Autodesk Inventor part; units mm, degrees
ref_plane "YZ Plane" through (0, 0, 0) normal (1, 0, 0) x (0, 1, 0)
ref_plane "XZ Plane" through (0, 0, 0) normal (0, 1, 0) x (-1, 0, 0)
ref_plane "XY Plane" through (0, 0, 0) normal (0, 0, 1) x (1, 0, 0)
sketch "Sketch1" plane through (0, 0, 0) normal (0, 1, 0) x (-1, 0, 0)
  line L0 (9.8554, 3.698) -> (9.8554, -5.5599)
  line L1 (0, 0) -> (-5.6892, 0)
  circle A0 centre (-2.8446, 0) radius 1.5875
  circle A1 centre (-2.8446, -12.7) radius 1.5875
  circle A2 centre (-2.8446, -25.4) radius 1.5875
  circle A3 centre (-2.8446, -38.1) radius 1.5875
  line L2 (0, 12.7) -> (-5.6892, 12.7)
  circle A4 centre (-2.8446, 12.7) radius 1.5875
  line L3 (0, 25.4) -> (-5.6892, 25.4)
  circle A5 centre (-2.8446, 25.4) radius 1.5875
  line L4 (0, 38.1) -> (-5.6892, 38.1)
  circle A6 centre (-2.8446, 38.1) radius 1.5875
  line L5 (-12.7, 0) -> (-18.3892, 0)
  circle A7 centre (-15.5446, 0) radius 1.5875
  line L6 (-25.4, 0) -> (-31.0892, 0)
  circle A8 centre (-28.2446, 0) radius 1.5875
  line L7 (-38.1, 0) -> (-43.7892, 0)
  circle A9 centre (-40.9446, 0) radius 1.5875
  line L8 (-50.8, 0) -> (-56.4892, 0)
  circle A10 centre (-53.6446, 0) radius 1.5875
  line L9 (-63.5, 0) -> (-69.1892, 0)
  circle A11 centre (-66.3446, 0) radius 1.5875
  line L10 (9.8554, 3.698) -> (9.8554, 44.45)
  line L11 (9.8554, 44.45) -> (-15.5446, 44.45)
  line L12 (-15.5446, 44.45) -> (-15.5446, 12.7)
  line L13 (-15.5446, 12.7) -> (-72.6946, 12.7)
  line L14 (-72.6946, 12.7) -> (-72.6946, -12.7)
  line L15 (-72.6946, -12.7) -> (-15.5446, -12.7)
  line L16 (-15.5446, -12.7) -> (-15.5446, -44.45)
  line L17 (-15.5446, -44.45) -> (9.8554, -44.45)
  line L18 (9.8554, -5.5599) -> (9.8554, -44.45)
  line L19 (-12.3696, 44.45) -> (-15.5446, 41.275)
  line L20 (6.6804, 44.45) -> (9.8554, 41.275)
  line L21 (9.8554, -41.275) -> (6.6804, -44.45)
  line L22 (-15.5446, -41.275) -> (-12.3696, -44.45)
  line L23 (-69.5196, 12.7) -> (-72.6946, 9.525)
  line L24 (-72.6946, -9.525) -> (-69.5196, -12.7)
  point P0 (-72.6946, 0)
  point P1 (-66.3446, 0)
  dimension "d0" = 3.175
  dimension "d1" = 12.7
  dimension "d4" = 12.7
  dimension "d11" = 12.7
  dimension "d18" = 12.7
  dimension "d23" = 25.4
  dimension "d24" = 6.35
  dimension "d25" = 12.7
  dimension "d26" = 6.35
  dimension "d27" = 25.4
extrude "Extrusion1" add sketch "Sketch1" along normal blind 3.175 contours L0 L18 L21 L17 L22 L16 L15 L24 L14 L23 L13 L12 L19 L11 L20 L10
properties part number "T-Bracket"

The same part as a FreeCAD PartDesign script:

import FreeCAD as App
import Part
import Sketcher
Q = App.Units.Quantity


def add_polygon(sketch, points):
    """Adds a closed chain of lines whose ends are joined by coincident constraints."""
    first, n = sketch.GeometryCount, len(points)
    for a, b in zip(points, points[1:] + points[:1]):
        sketch.addGeometry(Part.LineSegment(App.Vector(*a, 0), App.Vector(*b, 0)), False)
    for i in range(n):
        sketch.addConstraint(Sketcher.Constraint("Coincident", first + i, 2, first + (i + 1) % n, 1))

doc = App.newDocument("Part")
body = doc.addObject("PartDesign::Body", "Body")

sketch1 = doc.addObject("Sketcher::SketchObject", "Sketch")
body.addObject(sketch1)
sketch1.AttachmentSupport = (doc.XZ_Plane, [""])
sketch1.MapMode = "FlatFace"
add_polygon(sketch1, [(-9.9, -41.3), (-9.9, 41.3), (-6.7, 44.5), (12.4, 44.5), (15.5, 41.3), (15.5, 12.7), (69.5, 12.7), (72.7, 9.5), (72.7, -9.5), (69.5, -12.7), (15.5, -12.7), (15.5, -41.3), (12.4, -44.5), (-6.7, -44.5)])
sketch1.addGeometry(Part.Circle(App.Vector(2.8, -38.1, 0), App.Vector(0, 0, 1), 1.6), False)
sketch1.addGeometry(Part.Circle(App.Vector(2.8, -25.4, 0), App.Vector(0, 0, 1), 1.6), False)
sketch1.addGeometry(Part.Circle(App.Vector(2.8, -12.7, 0), App.Vector(0, 0, 1), 1.6), False)
sketch1.addGeometry(Part.Circle(App.Vector(66.3, 0, 0), App.Vector(0, 0, 1), 1.6), False)
sketch1.addGeometry(Part.Circle(App.Vector(53.6, 0, 0), App.Vector(0, 0, 1), 1.6), False)
sketch1.addGeometry(Part.Circle(App.Vector(40.9, 0, 0), App.Vector(0, 0, 1), 1.6), False)
sketch1.addGeometry(Part.Circle(App.Vector(28.2, 0, 0), App.Vector(0, 0, 1), 1.6), False)
sketch1.addGeometry(Part.Circle(App.Vector(15.5, 0, 0), App.Vector(0, 0, 1), 1.6), False)
sketch1.addGeometry(Part.Circle(App.Vector(2.8, 0, 0), App.Vector(0, 0, 1), 1.6), False)
sketch1.addGeometry(Part.Circle(App.Vector(2.8, 12.7, 0), App.Vector(0, 0, 1), 1.6), False)
sketch1.addGeometry(Part.Circle(App.Vector(2.8, 25.4, 0), App.Vector(0, 0, 1), 1.6), False)
sketch1.addGeometry(Part.Circle(App.Vector(2.8, 38.1, 0), App.Vector(0, 0, 1), 1.6), False)
sketch1.addConstraint([
    Sketcher.Constraint("Vertical", 0),
    Sketcher.Constraint("Horizontal", 2),
    Sketcher.Constraint("Vertical", 4),
    Sketcher.Constraint("Horizontal", 5),
    Sketcher.Constraint("Vertical", 7),
    Sketcher.Constraint("Horizontal", 9),
    Sketcher.Constraint("Vertical", 10),
    Sketcher.Constraint("Horizontal", 12),
    Sketcher.Constraint("Equal", 14, 15),
    Sketcher.Constraint("Equal", 15, 16),
    Sketcher.Constraint("Equal", 16, 17),
    Sketcher.Constraint("Equal", 17, 18),
    Sketcher.Constraint("Equal", 18, 19),
    Sketcher.Constraint("Equal", 19, 20),
    Sketcher.Constraint("Equal", 20, 21),
    Sketcher.Constraint("Equal", 21, 22),
    Sketcher.Constraint("Equal", 22, 23),
    Sketcher.Constraint("Equal", 23, 24),
    Sketcher.Constraint("Equal", 24, 25),
    Sketcher.Constraint("Symmetric", 16, 3, 23, 3, -1),
    Sketcher.Constraint("Symmetric", 15, 3, 24, 3, -1),
    Sketcher.Constraint("Symmetric", 14, 3, 25, 3, -1),
    Sketcher.Constraint("Symmetric", 5, 2, 8, 2, -1),
    Sketcher.Constraint("Symmetric", 3, 2, 10, 2, -1),
    Sketcher.Constraint("Symmetric", 2, 2, 11, 2, -1),
    Sketcher.Constraint("PointOnObject", 17, 3, -1),
    Sketcher.Constraint("PointOnObject", 18, 3, -1),
    Sketcher.Constraint("PointOnObject", 19, 3, -1),
    Sketcher.Constraint("PointOnObject", 20, 3, -1),
    Sketcher.Constraint("PointOnObject", 21, 3, -1),
    Sketcher.Constraint("PointOnObject", 22, 3, -1),
    Sketcher.Constraint("Perpendicular", 1, 3),
    Sketcher.Constraint("Parallel", 3, 6),
    Sketcher.Constraint("Perpendicular", 6, 8),
    Sketcher.Constraint("Parallel", 8, 11),
    Sketcher.Constraint("Perpendicular", 11, 13),
    Sketcher.Constraint("Horizontal", 0, 2, 3, 2),
    Sketcher.Constraint("Horizontal", 23, 3, 4, 2),
    Sketcher.Constraint("Horizontal", 10, 2, 13, 2),
    Sketcher.Constraint("Vertical", 14, 3, 15, 3),
    Sketcher.Constraint("Vertical", 15, 3, 16, 3),
    Sketcher.Constraint("Vertical", 16, 3, 22, 3),
    Sketcher.Constraint("Vertical", 21, 3, 3, 2),
    Sketcher.Constraint("Equal", 12, 7),
    Sketcher.Constraint("Equal", 3, 6),
    Sketcher.Constraint("Diameter", 14, Q("0.125 in")),
    Sketcher.Constraint("DistanceY", 15, 3, -1, 1, Q("1 in")),
    Sketcher.Constraint("DistanceY", 14, 3, 16, 3, Q("1 in")),
    Sketcher.Constraint("DistanceX", 19, 3, 17, 3, Q("1 in")),
    Sketcher.Constraint("DistanceX", 20, 3, 18, 3, Q("1 in")),
    Sketcher.Constraint("DistanceX", 16, 3, 20, 3, Q("1 in")),
    Sketcher.Constraint("DistanceX", 21, 3, 19, 3, Q("1 in")),
    Sketcher.Constraint("DistanceY", 16, 3, 23, 3, Q("1 in")),
    Sketcher.Constraint("DistanceX", 18, 3, 17, 3, Q("0.5 in")),
    Sketcher.Constraint("DistanceY", 25, 3, 1, 2, Q("0.25 in")),
    Sketcher.Constraint("DistanceX", 17, 3, 6, 2, Q("0.25 in")),
    Sketcher.Constraint("DistanceY", 25, 3, 0, 2, Q("0.125 in")),
    Sketcher.Constraint("DistanceX", -1, 1, 14, 3, Q("0.112 in")),
])
pad1 = doc.addObject("PartDesign::Pad", "Pad")
body.addObject(pad1)
pad1.Profile = sketch1
pad1.Length = Q("0.125 in")
pad1.Reversed = True

doc.recompute()
